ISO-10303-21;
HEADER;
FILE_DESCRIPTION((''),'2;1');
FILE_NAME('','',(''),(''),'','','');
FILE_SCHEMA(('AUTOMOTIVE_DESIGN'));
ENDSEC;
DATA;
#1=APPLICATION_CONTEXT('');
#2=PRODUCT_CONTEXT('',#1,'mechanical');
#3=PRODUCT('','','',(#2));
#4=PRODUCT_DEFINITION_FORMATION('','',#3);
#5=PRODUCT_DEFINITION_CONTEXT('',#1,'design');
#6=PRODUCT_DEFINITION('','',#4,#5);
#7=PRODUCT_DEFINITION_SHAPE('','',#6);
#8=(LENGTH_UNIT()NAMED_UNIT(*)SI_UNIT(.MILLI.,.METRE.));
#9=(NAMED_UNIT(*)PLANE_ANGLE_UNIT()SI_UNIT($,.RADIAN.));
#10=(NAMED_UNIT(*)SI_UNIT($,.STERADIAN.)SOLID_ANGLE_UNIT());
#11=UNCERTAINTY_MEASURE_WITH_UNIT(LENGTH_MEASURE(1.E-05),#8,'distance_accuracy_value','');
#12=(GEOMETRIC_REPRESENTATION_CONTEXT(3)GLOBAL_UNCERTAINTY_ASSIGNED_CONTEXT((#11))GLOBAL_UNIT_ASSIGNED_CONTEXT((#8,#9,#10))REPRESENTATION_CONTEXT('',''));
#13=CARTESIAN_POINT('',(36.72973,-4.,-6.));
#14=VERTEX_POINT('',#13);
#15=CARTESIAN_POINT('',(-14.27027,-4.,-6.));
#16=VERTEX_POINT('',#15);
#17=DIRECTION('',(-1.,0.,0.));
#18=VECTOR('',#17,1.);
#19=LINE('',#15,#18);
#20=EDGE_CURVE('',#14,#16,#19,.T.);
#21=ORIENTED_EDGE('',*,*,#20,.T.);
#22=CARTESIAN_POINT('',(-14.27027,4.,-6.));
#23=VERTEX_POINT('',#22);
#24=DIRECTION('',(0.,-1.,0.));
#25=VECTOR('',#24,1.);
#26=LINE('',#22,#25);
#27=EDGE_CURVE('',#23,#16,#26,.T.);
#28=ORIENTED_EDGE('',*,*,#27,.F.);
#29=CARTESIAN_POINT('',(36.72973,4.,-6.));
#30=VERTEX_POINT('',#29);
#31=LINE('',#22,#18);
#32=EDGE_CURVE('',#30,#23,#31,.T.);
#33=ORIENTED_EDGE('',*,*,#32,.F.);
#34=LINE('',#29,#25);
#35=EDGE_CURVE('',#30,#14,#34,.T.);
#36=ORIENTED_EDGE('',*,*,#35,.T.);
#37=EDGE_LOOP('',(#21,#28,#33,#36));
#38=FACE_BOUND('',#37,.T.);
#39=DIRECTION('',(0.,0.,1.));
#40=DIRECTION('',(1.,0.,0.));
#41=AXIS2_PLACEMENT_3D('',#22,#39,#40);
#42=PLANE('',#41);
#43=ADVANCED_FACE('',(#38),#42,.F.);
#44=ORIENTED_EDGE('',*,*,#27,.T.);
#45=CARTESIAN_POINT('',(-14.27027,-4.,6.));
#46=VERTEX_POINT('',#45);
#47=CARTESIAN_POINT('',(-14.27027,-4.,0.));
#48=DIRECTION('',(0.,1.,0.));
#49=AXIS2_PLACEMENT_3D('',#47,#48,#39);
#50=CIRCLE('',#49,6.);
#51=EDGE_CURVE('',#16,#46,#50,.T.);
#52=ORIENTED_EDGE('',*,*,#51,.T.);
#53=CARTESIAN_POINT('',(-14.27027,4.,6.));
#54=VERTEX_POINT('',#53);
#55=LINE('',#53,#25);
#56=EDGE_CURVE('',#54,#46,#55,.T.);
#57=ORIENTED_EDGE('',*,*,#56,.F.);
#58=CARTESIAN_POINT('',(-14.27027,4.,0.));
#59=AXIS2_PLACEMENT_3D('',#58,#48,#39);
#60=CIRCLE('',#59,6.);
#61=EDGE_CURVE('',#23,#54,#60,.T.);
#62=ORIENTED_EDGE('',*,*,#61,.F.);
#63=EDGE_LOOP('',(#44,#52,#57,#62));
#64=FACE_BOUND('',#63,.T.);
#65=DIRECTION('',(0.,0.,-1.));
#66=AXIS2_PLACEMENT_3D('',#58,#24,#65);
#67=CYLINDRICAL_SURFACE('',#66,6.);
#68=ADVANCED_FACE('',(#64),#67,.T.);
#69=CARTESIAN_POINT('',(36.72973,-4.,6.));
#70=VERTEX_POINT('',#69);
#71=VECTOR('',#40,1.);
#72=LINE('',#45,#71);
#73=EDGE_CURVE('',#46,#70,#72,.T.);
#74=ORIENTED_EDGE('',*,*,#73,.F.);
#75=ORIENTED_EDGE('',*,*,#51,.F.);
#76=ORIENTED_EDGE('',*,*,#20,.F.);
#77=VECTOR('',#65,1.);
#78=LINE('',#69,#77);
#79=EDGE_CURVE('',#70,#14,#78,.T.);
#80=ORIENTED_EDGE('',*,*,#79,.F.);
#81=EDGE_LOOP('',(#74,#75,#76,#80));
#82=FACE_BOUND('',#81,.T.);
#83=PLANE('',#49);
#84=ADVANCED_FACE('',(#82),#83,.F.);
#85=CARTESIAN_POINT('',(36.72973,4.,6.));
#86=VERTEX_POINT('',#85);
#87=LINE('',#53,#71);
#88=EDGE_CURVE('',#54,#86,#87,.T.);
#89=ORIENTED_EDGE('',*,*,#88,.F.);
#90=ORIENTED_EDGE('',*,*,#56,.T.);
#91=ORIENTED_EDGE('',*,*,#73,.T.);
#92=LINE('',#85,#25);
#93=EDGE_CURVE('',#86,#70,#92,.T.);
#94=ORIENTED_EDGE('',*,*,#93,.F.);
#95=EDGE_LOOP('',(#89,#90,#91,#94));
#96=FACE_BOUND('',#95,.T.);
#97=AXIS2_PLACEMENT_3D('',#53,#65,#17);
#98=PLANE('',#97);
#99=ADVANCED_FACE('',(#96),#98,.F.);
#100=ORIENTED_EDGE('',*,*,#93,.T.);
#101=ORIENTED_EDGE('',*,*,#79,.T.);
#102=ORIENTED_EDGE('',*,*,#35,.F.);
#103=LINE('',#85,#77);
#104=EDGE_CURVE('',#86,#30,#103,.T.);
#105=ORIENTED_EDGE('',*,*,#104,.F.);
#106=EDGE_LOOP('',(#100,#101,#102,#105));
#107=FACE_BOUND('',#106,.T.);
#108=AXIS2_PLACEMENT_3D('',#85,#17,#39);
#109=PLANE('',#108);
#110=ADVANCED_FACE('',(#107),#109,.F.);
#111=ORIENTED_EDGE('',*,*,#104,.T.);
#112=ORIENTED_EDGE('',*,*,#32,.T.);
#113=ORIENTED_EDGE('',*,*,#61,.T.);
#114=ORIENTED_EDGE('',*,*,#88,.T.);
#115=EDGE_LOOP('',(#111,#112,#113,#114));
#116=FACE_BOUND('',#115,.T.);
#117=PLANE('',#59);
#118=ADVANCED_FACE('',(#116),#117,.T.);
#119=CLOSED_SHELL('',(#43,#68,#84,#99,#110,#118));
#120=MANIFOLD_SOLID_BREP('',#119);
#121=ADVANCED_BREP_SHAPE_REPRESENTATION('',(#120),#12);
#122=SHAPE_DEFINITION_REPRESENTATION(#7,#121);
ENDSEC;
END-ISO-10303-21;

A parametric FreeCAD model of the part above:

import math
import FreeCAD as App
import Part
import Sketcher
from FreeCAD import Vector

doc = App.newDocument("Part")
body = doc.addObject("PartDesign::Body", "Body")

sketch1 = body.newObject("Sketcher::SketchObject", "Sketch")
sketch1.AttachmentSupport = (doc.getObject("XZ_Plane"), [""])
sketch1.MapMode = "FlatFace"
sketch1.addGeometry(Part.LineSegment(Vector(37, -6, 0), Vector(-14, -6, 0)), False)
sketch1.addGeometry(Part.ArcOfCircle(Part.Circle(Vector(-14, 0, 0), Vector(0, 0, 1), 6), math.radians(90), math.radians(270)), False)
sketch1.addGeometry(Part.LineSegment(Vector(-14, 6, 0), Vector(37, 6, 0)), False)
sketch1.addGeometry(Part.LineSegment(Vector(37, 6, 0), Vector(37, -6, 0)), False)
sketch1.addConstraint(Sketcher.Constraint("Tangent", 0, 2, 1, 2))
sketch1.addConstraint(Sketcher.Constraint("Tangent", 1, 1, 2, 1))
sketch1.addConstraint(Sketcher.Constraint("Coincident", 2, 2, 3, 1))
sketch1.addConstraint(Sketcher.Constraint("Coincident", 3, 2, 0, 1))
sketch1.addConstraint(Sketcher.Constraint("Horizontal", 0))
sketch1.addConstraint(Sketcher.Constraint("Horizontal", 2))
sketch1.addConstraint(Sketcher.Constraint("Vertical", 3))
sketch1.addConstraint(Sketcher.Constraint("PointOnObject", 1, 3, -1))
sketch1.addConstraint(Sketcher.Constraint("Radius", 1, 6.0))
sketch1.addConstraint(Sketcher.Constraint("DistanceX", 0, 2, 0, 1, 51.0))
sketch1.addConstraint(Sketcher.Constraint("DistanceX", 1, 3, -1, 1, 14.27027))
pad1 = body.newObject("PartDesign::Pad", "Pad")
pad1.Profile = sketch1
pad1.Length = 8
pad1.Midplane = True

doc.recompute()
